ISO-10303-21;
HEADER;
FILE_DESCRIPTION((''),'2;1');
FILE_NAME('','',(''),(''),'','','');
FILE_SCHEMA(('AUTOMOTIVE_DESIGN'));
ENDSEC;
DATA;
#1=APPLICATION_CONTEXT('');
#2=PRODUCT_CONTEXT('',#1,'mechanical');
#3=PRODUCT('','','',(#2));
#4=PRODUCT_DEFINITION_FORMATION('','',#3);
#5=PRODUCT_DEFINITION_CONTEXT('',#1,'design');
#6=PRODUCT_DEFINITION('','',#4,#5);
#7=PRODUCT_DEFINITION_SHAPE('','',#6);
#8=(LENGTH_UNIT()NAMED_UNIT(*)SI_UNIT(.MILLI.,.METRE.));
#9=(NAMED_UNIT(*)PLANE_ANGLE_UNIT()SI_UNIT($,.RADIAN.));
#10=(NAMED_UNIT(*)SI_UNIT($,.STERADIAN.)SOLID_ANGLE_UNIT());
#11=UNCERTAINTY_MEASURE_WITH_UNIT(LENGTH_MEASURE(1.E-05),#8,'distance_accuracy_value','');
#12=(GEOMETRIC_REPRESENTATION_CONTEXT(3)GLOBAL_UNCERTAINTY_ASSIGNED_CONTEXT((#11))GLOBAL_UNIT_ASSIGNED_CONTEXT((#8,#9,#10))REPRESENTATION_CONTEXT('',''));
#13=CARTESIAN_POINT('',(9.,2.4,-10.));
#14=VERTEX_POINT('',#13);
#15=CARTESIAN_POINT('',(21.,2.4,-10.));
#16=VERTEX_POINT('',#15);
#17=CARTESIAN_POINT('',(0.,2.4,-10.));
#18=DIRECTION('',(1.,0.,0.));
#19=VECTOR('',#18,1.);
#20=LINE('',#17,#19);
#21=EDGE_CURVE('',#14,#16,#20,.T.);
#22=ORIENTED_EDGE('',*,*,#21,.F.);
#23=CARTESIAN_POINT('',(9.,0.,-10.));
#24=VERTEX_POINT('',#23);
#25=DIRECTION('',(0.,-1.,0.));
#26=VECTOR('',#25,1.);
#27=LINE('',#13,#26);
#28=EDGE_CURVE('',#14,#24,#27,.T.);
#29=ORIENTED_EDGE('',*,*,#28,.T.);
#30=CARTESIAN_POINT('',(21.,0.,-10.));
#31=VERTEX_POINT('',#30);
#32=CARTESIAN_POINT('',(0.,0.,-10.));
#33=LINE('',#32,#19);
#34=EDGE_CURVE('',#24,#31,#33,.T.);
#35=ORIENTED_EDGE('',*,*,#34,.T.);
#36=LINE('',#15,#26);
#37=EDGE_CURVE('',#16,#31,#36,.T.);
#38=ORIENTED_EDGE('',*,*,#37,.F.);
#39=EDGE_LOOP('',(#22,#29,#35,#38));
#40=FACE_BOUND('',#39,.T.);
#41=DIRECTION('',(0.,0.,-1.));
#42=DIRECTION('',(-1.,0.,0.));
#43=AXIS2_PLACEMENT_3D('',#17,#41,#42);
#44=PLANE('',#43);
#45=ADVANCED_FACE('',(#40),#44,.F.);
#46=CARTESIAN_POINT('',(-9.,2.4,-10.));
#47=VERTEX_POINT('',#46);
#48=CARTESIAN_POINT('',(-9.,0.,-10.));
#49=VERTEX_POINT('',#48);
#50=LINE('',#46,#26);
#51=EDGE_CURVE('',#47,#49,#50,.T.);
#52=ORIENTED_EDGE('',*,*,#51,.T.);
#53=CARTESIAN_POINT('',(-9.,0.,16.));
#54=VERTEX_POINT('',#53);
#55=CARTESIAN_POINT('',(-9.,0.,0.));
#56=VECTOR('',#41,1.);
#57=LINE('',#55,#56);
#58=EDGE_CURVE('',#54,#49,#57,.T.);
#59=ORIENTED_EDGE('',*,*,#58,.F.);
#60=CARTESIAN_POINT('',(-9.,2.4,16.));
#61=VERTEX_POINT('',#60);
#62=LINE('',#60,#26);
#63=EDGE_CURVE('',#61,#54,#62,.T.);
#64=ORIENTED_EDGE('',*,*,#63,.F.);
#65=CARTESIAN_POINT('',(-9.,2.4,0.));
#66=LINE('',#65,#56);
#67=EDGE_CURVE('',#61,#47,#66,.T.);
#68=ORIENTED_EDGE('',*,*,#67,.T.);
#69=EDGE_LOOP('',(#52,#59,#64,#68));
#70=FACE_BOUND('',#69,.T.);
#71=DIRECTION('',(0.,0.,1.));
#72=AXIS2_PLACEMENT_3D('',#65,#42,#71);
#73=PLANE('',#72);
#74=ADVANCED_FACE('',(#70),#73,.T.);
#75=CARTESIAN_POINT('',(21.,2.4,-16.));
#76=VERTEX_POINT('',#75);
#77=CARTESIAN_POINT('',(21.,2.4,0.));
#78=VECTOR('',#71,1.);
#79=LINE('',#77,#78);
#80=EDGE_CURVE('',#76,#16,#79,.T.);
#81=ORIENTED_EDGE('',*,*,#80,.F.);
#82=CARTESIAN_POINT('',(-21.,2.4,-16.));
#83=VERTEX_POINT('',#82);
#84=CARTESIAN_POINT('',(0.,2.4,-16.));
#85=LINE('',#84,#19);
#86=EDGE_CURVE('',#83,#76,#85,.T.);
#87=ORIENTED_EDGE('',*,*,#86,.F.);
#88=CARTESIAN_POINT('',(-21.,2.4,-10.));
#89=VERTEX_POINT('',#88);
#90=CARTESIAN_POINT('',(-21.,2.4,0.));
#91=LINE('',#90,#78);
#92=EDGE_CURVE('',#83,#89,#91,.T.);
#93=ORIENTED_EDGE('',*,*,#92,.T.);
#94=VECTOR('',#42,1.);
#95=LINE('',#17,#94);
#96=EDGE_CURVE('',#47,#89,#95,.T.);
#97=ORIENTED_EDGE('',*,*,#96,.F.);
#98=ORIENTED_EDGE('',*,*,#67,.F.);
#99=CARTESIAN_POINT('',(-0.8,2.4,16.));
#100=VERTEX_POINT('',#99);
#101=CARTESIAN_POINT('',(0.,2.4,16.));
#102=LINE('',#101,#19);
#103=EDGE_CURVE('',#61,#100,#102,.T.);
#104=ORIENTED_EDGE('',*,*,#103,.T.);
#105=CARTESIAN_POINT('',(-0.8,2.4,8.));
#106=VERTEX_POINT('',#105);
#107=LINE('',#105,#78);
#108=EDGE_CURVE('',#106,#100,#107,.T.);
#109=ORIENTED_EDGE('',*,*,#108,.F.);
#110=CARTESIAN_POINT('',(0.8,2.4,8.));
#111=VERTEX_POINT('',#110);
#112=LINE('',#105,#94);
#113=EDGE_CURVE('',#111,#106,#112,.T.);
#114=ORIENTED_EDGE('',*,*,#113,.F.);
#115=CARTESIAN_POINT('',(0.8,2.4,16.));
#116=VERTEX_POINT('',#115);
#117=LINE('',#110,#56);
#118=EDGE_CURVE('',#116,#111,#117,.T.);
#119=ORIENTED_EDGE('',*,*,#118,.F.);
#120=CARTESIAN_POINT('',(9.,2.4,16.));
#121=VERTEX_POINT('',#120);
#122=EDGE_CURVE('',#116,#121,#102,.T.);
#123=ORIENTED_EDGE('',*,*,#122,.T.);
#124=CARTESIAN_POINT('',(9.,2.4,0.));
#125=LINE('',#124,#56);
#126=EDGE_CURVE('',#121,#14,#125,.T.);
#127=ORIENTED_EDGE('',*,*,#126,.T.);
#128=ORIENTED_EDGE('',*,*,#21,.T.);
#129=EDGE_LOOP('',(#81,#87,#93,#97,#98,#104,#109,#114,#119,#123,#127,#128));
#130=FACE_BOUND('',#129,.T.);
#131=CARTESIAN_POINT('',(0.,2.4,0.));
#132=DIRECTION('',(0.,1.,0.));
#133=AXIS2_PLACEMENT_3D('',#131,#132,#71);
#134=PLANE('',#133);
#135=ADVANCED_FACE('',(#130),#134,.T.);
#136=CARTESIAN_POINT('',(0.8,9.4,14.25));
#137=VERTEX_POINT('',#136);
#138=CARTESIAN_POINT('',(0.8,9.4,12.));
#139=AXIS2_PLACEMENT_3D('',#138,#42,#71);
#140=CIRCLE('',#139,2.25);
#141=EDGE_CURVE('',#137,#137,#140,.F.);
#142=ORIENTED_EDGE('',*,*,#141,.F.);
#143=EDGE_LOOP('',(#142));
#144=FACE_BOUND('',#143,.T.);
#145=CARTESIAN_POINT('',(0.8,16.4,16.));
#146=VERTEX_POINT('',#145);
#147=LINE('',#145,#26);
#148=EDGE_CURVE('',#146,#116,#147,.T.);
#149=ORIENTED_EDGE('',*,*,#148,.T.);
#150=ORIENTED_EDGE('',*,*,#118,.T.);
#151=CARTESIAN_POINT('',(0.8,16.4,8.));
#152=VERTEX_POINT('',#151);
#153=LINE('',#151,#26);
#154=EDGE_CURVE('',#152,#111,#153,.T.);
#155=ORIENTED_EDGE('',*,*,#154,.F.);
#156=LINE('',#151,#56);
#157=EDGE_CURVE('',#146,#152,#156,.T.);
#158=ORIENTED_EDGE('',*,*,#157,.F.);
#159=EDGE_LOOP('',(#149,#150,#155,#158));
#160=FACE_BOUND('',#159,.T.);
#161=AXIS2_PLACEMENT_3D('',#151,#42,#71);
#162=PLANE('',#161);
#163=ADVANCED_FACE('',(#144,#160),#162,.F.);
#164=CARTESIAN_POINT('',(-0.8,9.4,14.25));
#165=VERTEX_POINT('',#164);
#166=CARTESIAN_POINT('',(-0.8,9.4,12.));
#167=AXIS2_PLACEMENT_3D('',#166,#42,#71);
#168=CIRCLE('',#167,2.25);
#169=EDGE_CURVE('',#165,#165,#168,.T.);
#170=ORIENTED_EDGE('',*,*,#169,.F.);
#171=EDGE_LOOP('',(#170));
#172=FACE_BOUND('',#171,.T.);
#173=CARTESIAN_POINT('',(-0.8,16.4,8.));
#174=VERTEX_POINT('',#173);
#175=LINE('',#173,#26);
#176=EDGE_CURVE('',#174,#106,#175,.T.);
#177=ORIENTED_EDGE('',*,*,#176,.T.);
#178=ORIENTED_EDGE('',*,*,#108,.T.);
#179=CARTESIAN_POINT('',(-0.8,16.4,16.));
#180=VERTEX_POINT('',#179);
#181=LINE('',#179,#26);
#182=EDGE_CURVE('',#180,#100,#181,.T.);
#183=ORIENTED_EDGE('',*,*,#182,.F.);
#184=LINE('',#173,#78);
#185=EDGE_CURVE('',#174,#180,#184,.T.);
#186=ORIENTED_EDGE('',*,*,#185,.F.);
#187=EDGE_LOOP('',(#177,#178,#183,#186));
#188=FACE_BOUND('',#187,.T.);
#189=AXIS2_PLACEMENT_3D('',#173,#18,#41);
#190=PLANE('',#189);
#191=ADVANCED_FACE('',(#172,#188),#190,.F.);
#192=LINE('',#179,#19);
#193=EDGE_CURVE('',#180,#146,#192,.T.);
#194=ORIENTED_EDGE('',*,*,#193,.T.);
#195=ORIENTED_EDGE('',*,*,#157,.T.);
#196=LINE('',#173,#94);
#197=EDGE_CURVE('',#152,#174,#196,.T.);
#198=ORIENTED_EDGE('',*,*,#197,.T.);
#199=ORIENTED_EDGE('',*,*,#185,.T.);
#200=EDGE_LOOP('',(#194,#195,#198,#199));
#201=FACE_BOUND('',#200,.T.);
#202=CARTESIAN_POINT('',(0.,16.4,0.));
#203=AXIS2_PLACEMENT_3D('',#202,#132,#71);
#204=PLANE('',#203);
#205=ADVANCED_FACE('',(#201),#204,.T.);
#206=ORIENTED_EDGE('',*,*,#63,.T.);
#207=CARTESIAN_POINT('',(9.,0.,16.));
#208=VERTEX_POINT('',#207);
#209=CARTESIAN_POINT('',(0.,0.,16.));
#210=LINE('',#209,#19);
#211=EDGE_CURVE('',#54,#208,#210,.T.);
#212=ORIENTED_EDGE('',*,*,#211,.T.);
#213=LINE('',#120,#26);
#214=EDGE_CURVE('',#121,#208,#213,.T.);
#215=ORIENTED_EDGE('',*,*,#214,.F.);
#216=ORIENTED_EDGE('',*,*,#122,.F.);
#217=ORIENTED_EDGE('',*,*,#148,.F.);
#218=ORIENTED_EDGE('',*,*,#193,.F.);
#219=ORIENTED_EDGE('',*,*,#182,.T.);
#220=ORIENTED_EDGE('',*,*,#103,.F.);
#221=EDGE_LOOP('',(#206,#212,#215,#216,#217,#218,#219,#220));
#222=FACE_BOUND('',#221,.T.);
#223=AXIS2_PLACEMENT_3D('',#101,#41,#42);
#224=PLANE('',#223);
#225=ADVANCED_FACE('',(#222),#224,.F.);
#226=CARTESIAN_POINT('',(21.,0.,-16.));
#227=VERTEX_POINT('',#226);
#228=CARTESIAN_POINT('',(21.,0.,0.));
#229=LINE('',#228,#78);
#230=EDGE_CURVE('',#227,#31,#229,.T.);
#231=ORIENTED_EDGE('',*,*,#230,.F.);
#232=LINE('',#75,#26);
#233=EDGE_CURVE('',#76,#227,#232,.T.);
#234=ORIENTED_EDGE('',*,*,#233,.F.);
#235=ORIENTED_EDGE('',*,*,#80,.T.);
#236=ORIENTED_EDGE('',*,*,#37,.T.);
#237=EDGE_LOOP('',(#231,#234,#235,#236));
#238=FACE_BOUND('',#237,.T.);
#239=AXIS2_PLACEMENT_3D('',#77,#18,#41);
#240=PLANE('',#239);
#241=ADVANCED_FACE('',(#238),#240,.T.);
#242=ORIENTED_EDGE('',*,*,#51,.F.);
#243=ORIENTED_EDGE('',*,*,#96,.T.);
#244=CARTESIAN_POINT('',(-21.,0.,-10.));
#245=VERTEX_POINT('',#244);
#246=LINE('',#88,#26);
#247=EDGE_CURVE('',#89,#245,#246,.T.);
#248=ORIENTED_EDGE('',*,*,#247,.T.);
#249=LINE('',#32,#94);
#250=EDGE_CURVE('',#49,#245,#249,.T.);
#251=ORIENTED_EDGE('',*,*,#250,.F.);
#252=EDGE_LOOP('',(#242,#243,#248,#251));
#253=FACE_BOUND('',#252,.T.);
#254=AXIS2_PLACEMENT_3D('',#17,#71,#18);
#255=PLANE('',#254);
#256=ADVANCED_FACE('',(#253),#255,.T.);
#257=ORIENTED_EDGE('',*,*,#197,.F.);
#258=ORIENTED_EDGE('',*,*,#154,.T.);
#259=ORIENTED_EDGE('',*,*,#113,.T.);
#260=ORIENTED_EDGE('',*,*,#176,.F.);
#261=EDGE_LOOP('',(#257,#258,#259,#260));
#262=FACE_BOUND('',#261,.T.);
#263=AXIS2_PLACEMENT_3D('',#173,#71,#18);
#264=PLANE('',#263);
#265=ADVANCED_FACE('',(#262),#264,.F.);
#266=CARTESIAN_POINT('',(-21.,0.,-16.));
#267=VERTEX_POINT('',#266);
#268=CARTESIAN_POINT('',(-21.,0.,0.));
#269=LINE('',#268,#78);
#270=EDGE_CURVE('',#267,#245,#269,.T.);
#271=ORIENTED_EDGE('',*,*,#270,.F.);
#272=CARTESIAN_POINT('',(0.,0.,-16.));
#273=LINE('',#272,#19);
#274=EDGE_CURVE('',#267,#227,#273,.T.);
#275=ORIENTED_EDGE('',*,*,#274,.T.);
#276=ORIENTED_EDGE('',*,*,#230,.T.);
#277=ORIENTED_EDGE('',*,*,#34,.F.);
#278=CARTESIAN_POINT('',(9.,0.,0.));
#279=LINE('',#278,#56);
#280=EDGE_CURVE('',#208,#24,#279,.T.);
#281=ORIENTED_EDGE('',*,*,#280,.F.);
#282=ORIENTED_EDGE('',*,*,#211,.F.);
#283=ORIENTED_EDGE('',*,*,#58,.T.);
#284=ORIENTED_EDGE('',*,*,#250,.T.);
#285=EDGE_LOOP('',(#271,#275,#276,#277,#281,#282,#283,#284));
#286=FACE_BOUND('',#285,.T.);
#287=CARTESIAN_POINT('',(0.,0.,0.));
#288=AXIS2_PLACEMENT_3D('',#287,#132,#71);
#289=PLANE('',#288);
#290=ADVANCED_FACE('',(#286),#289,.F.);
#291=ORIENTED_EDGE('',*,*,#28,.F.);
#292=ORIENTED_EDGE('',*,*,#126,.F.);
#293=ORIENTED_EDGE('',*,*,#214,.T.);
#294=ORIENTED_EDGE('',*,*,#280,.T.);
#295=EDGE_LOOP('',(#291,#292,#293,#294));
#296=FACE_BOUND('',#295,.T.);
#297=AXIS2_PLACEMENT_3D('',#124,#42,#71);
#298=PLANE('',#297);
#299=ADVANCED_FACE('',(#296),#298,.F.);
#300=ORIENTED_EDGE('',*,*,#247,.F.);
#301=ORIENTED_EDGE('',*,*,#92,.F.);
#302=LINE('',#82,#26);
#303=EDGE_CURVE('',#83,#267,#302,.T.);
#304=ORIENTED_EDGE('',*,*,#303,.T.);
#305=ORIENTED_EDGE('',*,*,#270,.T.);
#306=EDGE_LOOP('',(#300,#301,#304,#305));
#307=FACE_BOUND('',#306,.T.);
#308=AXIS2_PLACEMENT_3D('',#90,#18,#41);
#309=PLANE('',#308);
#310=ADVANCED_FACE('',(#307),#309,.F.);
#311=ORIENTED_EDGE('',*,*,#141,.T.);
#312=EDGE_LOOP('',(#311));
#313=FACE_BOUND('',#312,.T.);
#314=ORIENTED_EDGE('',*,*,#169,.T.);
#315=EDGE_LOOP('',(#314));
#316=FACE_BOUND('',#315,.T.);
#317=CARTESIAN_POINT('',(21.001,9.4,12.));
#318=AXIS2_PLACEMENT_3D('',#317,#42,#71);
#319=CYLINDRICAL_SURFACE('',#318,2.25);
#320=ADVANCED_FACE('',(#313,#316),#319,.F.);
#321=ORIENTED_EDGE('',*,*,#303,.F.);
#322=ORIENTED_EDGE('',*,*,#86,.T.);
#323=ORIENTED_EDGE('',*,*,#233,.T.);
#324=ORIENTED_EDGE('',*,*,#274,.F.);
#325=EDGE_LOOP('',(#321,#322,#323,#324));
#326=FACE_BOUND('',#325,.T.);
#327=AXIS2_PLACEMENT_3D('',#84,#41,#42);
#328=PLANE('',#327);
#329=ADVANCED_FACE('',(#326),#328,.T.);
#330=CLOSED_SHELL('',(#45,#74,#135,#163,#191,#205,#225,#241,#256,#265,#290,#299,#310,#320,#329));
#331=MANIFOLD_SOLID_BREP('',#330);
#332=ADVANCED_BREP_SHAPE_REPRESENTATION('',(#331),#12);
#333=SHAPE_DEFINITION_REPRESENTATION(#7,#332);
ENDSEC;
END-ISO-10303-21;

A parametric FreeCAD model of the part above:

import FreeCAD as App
import Part
import Sketcher
from FreeCAD import Vector
Q = App.Units.Quantity

doc = App.newDocument("Part")
body = doc.addObject("PartDesign::Body", "Body")

# Sketch on XZ plane
sketch1 = body.newObject("Sketcher::SketchObject", "Sketch")
sketch1.AttachmentSupport = (doc.getObject("XZ_Plane"), [""])
sketch1.MapMode = "FlatFace"
sketch1.addGeometry(Part.LineSegment(Vector(-9, -10, 0), Vector(-9, 16, 0)), False)
sketch1.addGeometry(Part.LineSegment(Vector(-9, 16, 0), Vector(9, 16, 0)), False)
sketch1.addGeometry(Part.LineSegment(Vector(9, 16, 0), Vector(9, -10, 0)), False)
sketch1.addGeometry(Part.LineSegment(Vector(9, -10, 0), Vector(21, -10, 0)), False)
sketch1.addGeometry(Part.LineSegment(Vector(21, -10, 0), Vector(21, -16, 0)), False)
sketch1.addGeometry(Part.LineSegment(Vector(21, -16, 0), Vector(-21, -16, 0)), False)
sketch1.addGeometry(Part.LineSegment(Vector(-21, -16, 0), Vector(-21, -10, 0)), False)
sketch1.addGeometry(Part.LineSegment(Vector(-21, -10, 0), Vector(-9, -10, 0)), False)
sketch1.addConstraint(Sketcher.Constraint("Coincident", 0, 2, 1, 1))
sketch1.addConstraint(Sketcher.Constraint("Coincident", 1, 2, 2, 1))
sketch1.addConstraint(Sketcher.Constraint("Coincident", 2, 2, 3, 1))
sketch1.addConstraint(Sketcher.Constraint("Coincident", 3, 2, 4, 1))
sketch1.addConstraint(Sketcher.Constraint("Coincident", 4, 2, 5, 1))
sketch1.addConstraint(Sketcher.Constraint("Coincident", 5, 2, 6, 1))
sketch1.addConstraint(Sketcher.Constraint("Coincident", 6, 2, 7, 1))
sketch1.addConstraint(Sketcher.Constraint("Coincident", 7, 2, 0, 1))
sketch1.addConstraint(Sketcher.Constraint("Vertical", 0))
sketch1.addConstraint(Sketcher.Constraint("Horizontal", 1))
sketch1.addConstraint(Sketcher.Constraint("Vertical", 2))
sketch1.addConstraint(Sketcher.Constraint("Horizontal", 3))
sketch1.addConstraint(Sketcher.Constraint("Vertical", 4))
sketch1.addConstraint(Sketcher.Constraint("Horizontal", 5))
sketch1.addConstraint(Sketcher.Constraint("Vertical", 6))
sketch1.addConstraint(Sketcher.Constraint("Horizontal", 7))
sketch1.addConstraint(Sketcher.Constraint("Symmetric", 3, 2, 6, 2, -2))
sketch1.addConstraint(Sketcher.Constraint("Equal", 3, 7))
sketch1.addConstraint(Sketcher.Constraint("DistanceX", 1, 1, 1, 2, Q("18 mm")))
sketch1.addConstraint(Sketcher.Constraint("DistanceX", 3, 1, 3, 2, Q("12 mm")))
sketch1.addConstraint(Sketcher.Constraint("DistanceY", 0, 1, 0, 2, Q("26 mm")))
sketch1.addConstraint(Sketcher.Constraint("DistanceY", 4, 2, 4, 1, Q("6 mm")))
sketch1.addConstraint(Sketcher.Constraint("DistanceY", -1, 1, 0, 2, Q("16 mm")))
pad1 = body.newObject("PartDesign::Pad", "Pad")
pad1.Profile = sketch1
pad1.Length = 2.4
pad1.Reversed = True

# Sketch on XZ plane
sketch2 = body.newObject("Sketcher::SketchObject", "Sketch001")
sketch2.AttachmentSupport = (doc.getObject("XZ_Plane"), [""])
sketch2.MapMode = "FlatFace"
sketch2.AttachmentOffset = App.Placement(Vector(0, 0, -2.4), App.Rotation())
sketch2.addGeometry(Part.LineSegment(Vector(-0.8, 8, 0), Vector(-0.8, 16, 0)), False)
sketch2.addGeometry(Part.LineSegment(Vector(-0.8, 16, 0), Vector(0.8, 16, 0)), False)
sketch2.addGeometry(Part.LineSegment(Vector(0.8, 16, 0), Vector(0.8, 8, 0)), False)
sketch2.addGeometry(Part.LineSegment(Vector(0.8, 8, 0), Vector(-0.8, 8, 0)), False)
sketch2.addConstraint(Sketcher.Constraint("Coincident", 0, 2, 1, 1))
sketch2.addConstraint(Sketcher.Constraint("Coincident", 1, 2, 2, 1))
sketch2.addConstraint(Sketcher.Constraint("Coincident", 2, 2, 3, 1))
sketch2.addConstraint(Sketcher.Constraint("Coincident", 3, 2, 0, 1))
sketch2.addConstraint(Sketcher.Constraint("Vertical", 0))
sketch2.addConstraint(Sketcher.Constraint("Horizontal", 1))
sketch2.addConstraint(Sketcher.Constraint("Vertical", 2))
sketch2.addConstraint(Sketcher.Constraint("Horizontal", 3))
sketch2.addConstraint(Sketcher.Constraint("DistanceY", 0, 1, 0, 2, Q("8 mm")))
sketch2.addConstraint(Sketcher.Constraint("DistanceX", 1, 1, 1, 2, Q("1.6 mm")))
sketch2.addConstraint(Sketcher.Constraint("DistanceY", -1, 1, 0, 2, Q("16 mm")))
sketch2.addConstraint(Sketcher.Constraint("DistanceX", 0, 2, -1, 1, Q("0.8 mm")))
pad2 = body.newObject("PartDesign::Pad", "Pad001")
pad2.Profile = sketch2
pad2.Length = 14
pad2.Reversed = True

# Sketch on YZ plane
sketch3 = body.newObject("Sketcher::SketchObject", "Sketch002")
sketch3.AttachmentSupport = (doc.getObject("YZ_Plane"), [""])
sketch3.MapMode = "FlatFace"
sketch3.AttachmentOffset = App.Placement(Vector(0, 0, -0.8), App.Rotation())
sketch3.addGeometry(Part.Circle(Vector(9.4, 12, 0), Vector(0, 0, 1), 2.2), False)
sketch3.addConstraint(Sketcher.Constraint("Diameter", 0, Q("4.5 mm")))
sketch3.addConstraint(Sketcher.Constraint("DistanceY", -1, 1, 0, 3, Q("12 mm")))
sketch3.addConstraint(Sketcher.Constraint("DistanceX", -1, 1, 0, 3, Q("9.4 mm")))
pocket1 = body.newObject("PartDesign::Pocket", "Pocket")
pocket1.Profile = sketch3
pocket1.Type = "UpToFirst"
pocket1.Reversed = True

doc.recompute()
